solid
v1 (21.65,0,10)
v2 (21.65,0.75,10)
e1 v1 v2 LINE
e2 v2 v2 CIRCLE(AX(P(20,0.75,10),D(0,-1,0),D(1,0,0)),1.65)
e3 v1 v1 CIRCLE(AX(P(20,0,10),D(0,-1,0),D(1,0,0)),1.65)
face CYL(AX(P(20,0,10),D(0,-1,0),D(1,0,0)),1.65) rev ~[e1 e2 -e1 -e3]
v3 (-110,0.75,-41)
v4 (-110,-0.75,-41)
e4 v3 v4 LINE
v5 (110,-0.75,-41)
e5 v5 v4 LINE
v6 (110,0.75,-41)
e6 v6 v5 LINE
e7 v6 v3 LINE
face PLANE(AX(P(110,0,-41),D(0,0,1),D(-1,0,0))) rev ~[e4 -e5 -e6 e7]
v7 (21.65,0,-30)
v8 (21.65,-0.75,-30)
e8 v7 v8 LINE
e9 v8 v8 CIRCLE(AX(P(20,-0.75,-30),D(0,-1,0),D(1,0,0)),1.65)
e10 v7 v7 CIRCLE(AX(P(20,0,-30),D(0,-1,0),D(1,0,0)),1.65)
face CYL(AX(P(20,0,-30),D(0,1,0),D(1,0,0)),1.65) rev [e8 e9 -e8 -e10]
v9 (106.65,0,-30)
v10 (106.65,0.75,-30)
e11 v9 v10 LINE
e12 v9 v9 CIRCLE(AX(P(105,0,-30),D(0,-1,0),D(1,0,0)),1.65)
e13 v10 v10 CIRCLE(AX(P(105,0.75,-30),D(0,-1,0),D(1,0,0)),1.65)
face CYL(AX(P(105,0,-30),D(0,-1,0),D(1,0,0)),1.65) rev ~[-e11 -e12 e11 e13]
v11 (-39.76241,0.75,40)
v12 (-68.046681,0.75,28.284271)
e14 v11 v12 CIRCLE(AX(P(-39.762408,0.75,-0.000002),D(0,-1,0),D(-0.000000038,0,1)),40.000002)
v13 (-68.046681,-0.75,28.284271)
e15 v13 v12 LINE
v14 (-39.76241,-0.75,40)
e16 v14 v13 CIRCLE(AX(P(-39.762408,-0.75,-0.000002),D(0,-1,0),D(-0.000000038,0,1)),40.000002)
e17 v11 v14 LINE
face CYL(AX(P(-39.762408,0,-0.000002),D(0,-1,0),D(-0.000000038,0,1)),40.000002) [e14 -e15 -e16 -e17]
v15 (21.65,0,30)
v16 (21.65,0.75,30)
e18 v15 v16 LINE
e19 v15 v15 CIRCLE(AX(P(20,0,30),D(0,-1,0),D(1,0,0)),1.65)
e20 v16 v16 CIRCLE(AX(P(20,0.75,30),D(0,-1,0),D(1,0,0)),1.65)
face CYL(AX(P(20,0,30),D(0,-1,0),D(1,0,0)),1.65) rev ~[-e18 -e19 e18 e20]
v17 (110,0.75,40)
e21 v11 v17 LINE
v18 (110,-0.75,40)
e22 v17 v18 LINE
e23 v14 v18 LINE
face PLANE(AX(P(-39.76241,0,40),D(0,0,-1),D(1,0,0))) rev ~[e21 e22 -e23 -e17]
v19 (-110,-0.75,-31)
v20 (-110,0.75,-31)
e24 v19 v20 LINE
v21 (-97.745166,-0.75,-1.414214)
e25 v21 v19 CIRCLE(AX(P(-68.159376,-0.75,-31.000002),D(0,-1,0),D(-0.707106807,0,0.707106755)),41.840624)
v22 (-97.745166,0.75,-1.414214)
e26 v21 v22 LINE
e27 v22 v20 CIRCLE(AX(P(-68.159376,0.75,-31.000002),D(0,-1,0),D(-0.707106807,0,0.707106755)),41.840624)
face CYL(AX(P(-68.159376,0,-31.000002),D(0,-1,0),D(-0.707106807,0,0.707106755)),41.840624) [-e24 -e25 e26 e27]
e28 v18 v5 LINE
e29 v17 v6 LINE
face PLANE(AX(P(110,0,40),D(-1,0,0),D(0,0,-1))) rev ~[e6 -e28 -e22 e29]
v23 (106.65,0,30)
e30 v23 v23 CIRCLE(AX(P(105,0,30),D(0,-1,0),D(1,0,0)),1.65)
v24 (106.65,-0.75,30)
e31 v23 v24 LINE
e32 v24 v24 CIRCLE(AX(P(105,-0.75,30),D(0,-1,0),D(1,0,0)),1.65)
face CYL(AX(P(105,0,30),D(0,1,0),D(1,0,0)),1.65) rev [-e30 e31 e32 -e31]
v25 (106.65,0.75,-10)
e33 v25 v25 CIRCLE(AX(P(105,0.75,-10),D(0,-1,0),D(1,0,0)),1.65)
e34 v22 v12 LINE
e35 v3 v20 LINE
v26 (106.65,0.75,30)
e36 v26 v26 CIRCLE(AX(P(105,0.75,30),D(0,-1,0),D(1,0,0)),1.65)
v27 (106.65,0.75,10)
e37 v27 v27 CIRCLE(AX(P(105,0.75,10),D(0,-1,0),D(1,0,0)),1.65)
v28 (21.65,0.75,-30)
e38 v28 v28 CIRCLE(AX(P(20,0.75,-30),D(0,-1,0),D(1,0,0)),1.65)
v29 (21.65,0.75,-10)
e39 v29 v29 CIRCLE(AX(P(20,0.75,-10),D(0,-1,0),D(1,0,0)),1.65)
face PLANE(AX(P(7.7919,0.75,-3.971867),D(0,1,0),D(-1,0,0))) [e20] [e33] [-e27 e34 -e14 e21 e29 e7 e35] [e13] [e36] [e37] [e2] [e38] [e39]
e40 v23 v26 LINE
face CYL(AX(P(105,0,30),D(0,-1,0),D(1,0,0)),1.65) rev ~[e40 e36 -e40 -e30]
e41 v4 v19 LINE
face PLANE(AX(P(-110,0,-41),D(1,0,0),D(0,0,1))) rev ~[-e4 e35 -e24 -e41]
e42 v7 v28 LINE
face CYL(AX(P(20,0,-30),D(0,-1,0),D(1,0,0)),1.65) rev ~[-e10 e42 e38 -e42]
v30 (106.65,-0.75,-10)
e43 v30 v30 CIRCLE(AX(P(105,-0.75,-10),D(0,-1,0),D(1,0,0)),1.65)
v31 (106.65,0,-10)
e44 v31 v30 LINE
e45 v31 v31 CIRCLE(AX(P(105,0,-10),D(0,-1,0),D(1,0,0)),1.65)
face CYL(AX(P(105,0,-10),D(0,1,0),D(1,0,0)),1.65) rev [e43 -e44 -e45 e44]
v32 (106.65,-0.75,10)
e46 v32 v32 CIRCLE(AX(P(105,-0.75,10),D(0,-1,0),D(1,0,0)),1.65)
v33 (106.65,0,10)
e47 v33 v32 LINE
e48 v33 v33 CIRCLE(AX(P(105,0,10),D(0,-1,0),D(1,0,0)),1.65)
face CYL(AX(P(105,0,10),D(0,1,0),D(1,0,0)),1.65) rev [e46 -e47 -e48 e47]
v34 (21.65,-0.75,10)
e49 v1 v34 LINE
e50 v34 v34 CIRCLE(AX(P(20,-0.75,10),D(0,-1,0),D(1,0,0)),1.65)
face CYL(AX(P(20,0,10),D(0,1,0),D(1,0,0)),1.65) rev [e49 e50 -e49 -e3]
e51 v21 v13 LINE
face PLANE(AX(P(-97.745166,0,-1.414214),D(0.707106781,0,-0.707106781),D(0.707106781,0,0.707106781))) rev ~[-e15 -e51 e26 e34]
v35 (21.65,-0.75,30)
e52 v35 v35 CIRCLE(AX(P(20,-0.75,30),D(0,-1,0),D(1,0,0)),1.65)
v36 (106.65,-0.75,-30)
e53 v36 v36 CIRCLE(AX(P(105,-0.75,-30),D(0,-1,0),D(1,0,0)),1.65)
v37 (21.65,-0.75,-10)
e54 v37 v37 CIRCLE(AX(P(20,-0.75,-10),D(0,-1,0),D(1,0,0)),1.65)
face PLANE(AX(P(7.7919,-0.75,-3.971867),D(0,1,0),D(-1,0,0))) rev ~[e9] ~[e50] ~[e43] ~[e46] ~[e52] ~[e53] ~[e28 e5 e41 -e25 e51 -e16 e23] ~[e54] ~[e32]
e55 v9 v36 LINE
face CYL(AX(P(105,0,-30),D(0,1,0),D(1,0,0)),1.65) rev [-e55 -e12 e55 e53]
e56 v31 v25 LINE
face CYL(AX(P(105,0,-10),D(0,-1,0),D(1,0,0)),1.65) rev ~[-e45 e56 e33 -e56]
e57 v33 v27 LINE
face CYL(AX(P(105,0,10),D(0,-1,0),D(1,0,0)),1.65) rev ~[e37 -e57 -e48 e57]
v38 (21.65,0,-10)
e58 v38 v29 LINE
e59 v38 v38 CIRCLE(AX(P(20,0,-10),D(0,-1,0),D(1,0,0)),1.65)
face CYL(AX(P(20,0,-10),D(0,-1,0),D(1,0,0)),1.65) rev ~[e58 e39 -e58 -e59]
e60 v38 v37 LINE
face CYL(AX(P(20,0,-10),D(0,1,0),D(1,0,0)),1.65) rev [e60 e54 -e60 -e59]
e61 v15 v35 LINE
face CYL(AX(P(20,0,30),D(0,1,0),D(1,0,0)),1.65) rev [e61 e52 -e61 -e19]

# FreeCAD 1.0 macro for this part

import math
import FreeCAD as App
import Part
import Sketcher
from FreeCAD import Vector
Q = App.Units.Quantity

doc = App.newDocument("Part")
body = doc.addObject("PartDesign::Body", "Body")

# Sketch on XZ plane
sketch1 = body.newObject("Sketcher::SketchObject", "Sketch")
sketch1.AttachmentSupport = (doc.getObject("XZ_Plane"), [""])
sketch1.MapMode = "FlatFace"
sketch1.addGeometry([
    Part.LineSegment(Vector(-110, -31, 0), Vector(-110, -41, 0)),  # 0
    Part.LineSegment(Vector(-110, -41, 0), Vector(110, -41, 0)),  # 1
    Part.LineSegment(Vector(110, -41, 0), Vector(110, 40, 0)),  # 2
    Part.LineSegment(Vector(110, 40, 0), Vector(-39.8, 40, 0)),  # 3
    Part.ArcOfCircle(Part.Circle(Vector(-39.8, 0, 0), Vector(0, 0, 1), 40), math.radians(90), math.radians(135)),  # 4
    Part.LineSegment(Vector(-68, 28.3, 0), Vector(-97.7, -1.4, 0)),  # 5
    Part.ArcOfCircle(Part.Circle(Vector(-68.2, -31, 0), Vector(0, 0, 1), 41.8), math.radians(135), math.radians(180)),  # 6
    Part.Circle(Vector(105, -30, 0), Vector(0, 0, 1), 1.6),  # 7
    Part.Circle(Vector(105, -10, 0), Vector(0, 0, 1), 1.6),  # 8
    Part.Circle(Vector(20, -30, 0), Vector(0, 0, 1), 1.6),  # 9
    Part.Circle(Vector(20, -10, 0), Vector(0, 0, 1), 1.6),  # 10
    Part.Circle(Vector(105, 10, 0), Vector(0, 0, 1), 1.6),  # 11
    Part.Circle(Vector(105, 30, 0), Vector(0, 0, 1), 1.6),  # 12
    Part.Circle(Vector(20, 10, 0), Vector(0, 0, 1), 1.6),  # 13
    Part.Circle(Vector(20, 30, 0), Vector(0, 0, 1), 1.6),  # 14
], False)
sketch1.addConstraint([
    Sketcher.Constraint("Coincident", 0, 2, 1, 1),
    Sketcher.Constraint("Coincident", 1, 2, 2, 1),
    Sketcher.Constraint("Coincident", 2, 2, 3, 1),
    Sketcher.Constraint("Tangent", 3, 2, 4, 1),
    Sketcher.Constraint("Tangent", 4, 2, 5, 1),
    Sketcher.Constraint("Tangent", 5, 2, 6, 1),
    Sketcher.Constraint("Tangent", 6, 2, 0, 1),
    Sketcher.Constraint("Vertical", 0),
    Sketcher.Constraint("Horizontal", 1),
    Sketcher.Constraint("Vertical", 2),
    Sketcher.Constraint("Horizontal", 3),
    Sketcher.Constraint("Equal", 7, 8),
    Sketcher.Constraint("Equal", 8, 9),
    Sketcher.Constraint("Equal", 9, 10),
    Sketcher.Constraint("Equal", 10, 11),
    Sketcher.Constraint("Equal", 11, 12),
    Sketcher.Constraint("Equal", 12, 13),
    Sketcher.Constraint("Equal", 13, 14),
    Sketcher.Constraint("Symmetric", 8, 3, 11, 3, -1),
    Sketcher.Constraint("Symmetric", 7, 3, 12, 3, -1),
    Sketcher.Constraint("Symmetric", 10, 3, 13, 3, -1),
    Sketcher.Constraint("Symmetric", 9, 3, 14, 3, -1),
    Sketcher.Constraint("Horizontal", 7, 3, 9, 3),
    Sketcher.Constraint("Horizontal", 8, 3, 10, 3),
    Sketcher.Constraint("Vertical", 7, 3, 8, 3),
    Sketcher.Constraint("Vertical", 9, 3, 10, 3),
    Sketcher.Constraint("Diameter", 7, Q("3.3 mm")),
    Sketcher.Constraint("DistanceX", 1, 1, 1, 2, Q("220 mm")),
    Sketcher.Constraint("DistanceY", 0, 2, 0, 1, Q("10 mm")),
    Sketcher.Constraint("DistanceY", 2, 1, 2, 2, Q("81 mm")),
    Sketcher.Constraint("Angle", 5, Q("-135 deg")),
    Sketcher.Constraint("Distance", 5, Q("42 mm")),
    Sketcher.Constraint("DistanceY", 6, 3, -1, 1, Q("31.000002 mm")),
    Sketcher.Constraint("DistanceX", -1, 1, 7, 3, Q("105 mm")),
    Sketcher.Constraint("DistanceY", 7, 3, -1, 1, Q("30 mm")),
    Sketcher.Constraint("DistanceY", 8, 3, -1, 1, Q("10 mm")),
    Sketcher.Constraint("DistanceX", -1, 1, 9, 3, Q("20 mm")),
    Sketcher.Constraint("DistanceX", 0, 2, -1, 1, Q("110 mm")),
    Sketcher.Constraint("DistanceY", 6, 3, 4, 3, Q("31 mm")),
])
pad1 = body.newObject("PartDesign::Pad", "Pad")
pad1.Profile = sketch1
pad1.Type = "TwoLengths"
pad1.Length = 0.75
pad1.Length2 = 0.75

doc.recompute()
